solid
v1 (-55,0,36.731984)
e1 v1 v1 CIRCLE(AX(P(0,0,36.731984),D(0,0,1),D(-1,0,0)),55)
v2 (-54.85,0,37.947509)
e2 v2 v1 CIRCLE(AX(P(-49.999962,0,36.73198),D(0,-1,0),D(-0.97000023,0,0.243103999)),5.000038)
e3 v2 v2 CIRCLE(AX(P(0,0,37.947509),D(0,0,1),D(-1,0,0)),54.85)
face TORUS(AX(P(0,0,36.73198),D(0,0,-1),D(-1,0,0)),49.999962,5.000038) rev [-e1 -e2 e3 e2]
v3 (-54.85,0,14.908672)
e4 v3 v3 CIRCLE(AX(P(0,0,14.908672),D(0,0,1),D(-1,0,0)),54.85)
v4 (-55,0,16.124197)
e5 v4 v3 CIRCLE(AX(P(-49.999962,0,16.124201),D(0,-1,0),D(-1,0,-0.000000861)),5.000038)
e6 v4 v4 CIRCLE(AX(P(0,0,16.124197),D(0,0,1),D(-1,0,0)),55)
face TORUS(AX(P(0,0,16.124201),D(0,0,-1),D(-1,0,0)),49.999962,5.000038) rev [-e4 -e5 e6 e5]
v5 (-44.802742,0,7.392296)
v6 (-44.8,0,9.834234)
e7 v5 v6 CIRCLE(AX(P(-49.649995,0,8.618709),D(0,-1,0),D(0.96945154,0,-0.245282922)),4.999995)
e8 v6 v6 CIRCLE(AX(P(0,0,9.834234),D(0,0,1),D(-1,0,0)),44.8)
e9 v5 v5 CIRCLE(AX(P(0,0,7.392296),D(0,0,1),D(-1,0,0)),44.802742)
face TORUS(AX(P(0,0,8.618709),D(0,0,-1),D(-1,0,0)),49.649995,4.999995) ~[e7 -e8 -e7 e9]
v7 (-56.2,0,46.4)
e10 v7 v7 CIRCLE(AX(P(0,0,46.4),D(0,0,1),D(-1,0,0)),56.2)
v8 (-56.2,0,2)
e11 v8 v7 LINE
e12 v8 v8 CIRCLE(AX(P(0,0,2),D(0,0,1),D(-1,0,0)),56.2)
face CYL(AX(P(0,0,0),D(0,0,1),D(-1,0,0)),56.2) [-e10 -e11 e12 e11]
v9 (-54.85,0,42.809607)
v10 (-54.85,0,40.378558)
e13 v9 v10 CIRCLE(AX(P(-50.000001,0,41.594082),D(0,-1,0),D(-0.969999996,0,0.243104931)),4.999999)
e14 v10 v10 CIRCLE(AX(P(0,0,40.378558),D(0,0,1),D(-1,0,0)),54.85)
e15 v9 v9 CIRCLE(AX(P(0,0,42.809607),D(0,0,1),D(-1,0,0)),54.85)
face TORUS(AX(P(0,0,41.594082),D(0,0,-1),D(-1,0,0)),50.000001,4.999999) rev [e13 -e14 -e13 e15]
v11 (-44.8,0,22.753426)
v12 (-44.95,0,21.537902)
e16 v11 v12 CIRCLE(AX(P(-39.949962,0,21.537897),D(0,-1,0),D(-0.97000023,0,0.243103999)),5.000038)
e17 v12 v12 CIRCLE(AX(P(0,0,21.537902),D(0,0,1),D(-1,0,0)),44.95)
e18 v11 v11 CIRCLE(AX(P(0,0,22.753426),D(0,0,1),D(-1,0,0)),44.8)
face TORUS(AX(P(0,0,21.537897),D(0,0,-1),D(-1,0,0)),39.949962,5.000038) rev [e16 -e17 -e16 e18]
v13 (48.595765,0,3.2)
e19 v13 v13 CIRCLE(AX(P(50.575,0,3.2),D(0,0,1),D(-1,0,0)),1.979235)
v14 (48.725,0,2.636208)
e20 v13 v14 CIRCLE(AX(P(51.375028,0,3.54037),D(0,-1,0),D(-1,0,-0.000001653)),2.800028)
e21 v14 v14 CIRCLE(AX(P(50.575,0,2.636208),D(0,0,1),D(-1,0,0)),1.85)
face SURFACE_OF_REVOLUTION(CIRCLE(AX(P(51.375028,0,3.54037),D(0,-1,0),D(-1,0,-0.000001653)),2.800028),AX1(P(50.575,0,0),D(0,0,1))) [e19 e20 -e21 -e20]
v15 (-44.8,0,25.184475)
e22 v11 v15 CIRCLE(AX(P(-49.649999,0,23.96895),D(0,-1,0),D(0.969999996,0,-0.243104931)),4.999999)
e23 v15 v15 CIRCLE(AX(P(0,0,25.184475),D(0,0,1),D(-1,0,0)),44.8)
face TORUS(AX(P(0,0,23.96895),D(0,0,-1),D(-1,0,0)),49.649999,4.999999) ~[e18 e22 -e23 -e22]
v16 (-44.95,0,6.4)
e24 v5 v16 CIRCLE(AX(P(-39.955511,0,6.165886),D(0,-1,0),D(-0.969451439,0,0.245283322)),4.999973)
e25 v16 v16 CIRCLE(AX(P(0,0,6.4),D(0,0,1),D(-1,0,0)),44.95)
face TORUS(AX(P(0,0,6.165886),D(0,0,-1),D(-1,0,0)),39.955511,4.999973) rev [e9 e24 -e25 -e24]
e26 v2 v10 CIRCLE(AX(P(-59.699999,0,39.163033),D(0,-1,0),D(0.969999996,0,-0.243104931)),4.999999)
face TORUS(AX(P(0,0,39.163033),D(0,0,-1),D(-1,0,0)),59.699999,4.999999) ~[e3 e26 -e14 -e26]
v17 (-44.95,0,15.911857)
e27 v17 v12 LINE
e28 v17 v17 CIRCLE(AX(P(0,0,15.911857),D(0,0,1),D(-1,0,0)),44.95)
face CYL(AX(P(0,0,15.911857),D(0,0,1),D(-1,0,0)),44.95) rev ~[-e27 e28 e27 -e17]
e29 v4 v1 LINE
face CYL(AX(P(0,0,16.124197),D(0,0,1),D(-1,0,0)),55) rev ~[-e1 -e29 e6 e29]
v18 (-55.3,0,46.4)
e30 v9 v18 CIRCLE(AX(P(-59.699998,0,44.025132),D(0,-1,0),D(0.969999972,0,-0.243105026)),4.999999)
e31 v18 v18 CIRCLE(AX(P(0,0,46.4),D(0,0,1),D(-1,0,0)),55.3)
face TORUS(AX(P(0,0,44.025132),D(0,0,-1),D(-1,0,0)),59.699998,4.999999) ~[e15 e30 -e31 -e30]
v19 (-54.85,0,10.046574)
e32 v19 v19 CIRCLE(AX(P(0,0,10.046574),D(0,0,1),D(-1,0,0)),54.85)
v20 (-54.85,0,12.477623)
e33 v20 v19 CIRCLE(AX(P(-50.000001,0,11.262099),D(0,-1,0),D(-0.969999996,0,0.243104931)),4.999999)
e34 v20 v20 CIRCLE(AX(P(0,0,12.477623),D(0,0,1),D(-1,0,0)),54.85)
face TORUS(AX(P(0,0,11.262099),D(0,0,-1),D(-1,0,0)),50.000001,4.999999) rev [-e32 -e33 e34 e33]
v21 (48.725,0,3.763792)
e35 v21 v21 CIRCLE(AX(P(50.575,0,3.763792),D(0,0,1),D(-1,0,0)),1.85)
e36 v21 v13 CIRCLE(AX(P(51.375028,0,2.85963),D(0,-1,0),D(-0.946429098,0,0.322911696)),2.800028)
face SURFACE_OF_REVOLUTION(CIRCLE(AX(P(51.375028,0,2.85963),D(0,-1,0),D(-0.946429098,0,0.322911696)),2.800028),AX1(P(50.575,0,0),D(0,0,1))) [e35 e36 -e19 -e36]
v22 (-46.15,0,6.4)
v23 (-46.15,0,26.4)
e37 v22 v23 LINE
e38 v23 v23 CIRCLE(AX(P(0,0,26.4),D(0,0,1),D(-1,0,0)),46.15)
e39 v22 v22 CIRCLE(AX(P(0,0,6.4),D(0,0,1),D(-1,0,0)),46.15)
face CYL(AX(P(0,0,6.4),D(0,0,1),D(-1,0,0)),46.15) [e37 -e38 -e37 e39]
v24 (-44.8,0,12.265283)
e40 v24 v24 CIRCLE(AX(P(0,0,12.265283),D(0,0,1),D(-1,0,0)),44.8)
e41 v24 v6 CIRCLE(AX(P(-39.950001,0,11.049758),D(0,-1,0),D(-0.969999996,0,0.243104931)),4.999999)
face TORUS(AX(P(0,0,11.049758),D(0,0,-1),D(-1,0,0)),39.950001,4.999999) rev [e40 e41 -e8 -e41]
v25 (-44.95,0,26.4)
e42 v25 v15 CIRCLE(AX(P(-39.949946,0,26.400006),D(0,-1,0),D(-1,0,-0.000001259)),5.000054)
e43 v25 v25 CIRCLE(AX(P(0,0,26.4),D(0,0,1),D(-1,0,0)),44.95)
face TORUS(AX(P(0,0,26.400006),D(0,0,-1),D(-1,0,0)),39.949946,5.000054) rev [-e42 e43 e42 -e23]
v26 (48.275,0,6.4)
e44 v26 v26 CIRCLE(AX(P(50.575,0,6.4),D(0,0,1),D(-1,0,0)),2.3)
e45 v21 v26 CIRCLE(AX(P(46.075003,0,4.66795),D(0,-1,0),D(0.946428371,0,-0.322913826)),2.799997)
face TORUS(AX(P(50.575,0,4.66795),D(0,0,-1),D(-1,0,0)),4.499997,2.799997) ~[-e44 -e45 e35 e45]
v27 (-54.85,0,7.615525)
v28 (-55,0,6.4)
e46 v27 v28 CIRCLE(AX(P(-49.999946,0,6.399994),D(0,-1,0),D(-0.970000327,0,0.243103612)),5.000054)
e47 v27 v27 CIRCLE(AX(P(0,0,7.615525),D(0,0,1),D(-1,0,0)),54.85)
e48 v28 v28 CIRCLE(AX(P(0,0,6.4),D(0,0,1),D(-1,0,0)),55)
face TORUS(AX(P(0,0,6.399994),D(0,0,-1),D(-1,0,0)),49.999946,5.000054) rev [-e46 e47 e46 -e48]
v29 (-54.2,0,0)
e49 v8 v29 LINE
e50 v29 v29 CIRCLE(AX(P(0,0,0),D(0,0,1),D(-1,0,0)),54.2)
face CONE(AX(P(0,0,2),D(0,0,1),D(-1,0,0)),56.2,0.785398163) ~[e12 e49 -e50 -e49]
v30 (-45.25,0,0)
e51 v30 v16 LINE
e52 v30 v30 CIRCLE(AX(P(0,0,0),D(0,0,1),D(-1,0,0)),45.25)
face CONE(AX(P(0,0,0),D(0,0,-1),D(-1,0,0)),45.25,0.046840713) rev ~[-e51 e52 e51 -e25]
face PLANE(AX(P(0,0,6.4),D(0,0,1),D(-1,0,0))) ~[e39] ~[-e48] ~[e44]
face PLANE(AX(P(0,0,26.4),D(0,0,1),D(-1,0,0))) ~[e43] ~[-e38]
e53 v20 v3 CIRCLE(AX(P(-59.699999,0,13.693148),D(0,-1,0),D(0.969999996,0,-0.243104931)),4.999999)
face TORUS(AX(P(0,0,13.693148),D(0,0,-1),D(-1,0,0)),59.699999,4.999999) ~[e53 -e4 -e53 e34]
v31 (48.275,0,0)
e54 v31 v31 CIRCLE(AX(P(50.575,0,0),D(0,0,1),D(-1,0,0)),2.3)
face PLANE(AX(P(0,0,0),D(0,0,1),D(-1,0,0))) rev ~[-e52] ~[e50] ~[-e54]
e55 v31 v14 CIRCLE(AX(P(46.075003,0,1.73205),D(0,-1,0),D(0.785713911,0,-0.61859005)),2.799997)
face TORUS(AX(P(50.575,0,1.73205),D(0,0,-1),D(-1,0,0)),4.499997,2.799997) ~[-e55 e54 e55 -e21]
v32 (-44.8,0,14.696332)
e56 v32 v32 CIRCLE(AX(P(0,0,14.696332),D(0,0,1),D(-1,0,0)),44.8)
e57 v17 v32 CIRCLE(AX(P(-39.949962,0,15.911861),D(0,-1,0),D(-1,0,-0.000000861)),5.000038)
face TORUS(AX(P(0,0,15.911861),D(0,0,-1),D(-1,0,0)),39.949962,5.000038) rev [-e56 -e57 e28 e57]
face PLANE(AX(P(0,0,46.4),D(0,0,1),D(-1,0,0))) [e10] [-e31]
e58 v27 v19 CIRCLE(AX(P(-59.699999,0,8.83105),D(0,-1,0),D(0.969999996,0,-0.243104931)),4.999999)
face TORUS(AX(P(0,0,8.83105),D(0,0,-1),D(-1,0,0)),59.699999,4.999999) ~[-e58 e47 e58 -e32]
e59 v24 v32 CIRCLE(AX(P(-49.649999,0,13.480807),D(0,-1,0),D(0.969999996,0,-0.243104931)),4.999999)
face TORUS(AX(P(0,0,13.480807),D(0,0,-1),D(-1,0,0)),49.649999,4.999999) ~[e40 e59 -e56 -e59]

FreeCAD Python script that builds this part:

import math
import FreeCAD as App
import Part
import Sketcher

V = App.Vector


def edges_at(feature, points):
    """Names of the edges that pass closest to the given points."""
    edges = feature.Shape.Edges
    near = lambda p: min(range(len(edges)), key=lambda i: edges[i].distToShape(Part.Vertex(*p))[0])
    return sorted({f"Edge{near(p) + 1}" for p in points})

doc = App.newDocument("Part")
body = doc.addObject("PartDesign::Body", "Body")

# Sketch on XZ plane
sketch1 = body.newObject("Sketcher::SketchObject", "Sketch")
sketch1.AttachmentSupport = (doc.getObject("XZ_Plane"), [""])
sketch1.MapMode = "FlatFace"
sketch1.addGeometry([
    Part.LineSegment(V(-56.2, 46.4, 0), V(-56.2, 0, 0)),  # 0
    Part.LineSegment(V(-56.2, 0, 0), V(-45.25, 0, 0)),  # 1
    Part.LineSegment(V(-45.25, 0, 0), V(-44.95, 6.4, 0)),  # 2
    Part.ArcOfCircle(Part.Circle(V(-39.955511, 6.165886, 0), V(0, 0, 1), 4.999973), math.radians(165.801422), math.radians(177.316257)),  # 3
    Part.ArcOfCircle(Part.Circle(V(-49.649995, 8.618709, 0), V(0, 0, 1), 4.999995), math.radians(-14.198554), math.radians(14.069882)),  # 4
    Part.ArcOfCircle(Part.Circle(V(-39.950001, 11.049758, 0), V(0, 0, 1), 4.999999), math.radians(165.930131), math.radians(194.069869)),  # 5
    Part.ArcOfCircle(Part.Circle(V(-49.649999, 13.480807, 0), V(0, 0, 1), 4.999999), math.radians(-14.069869), math.radians(14.069869)),  # 6
    Part.ArcOfCircle(Part.Circle(V(-39.949962, 15.911861, 0), V(0, 0, 1), 5.000038), math.radians(-179.999951), math.radians(-165.930186)),  # 7
    Part.LineSegment(V(-44.95, 15.911857, 0), V(-44.95, 21.537902, 0)),  # 8
    Part.ArcOfCircle(Part.Circle(V(-39.949962, 21.537897, 0), V(0, 0, 1), 5.000038), math.radians(165.930186), math.radians(179.999939)),  # 9
    Part.ArcOfCircle(Part.Circle(V(-49.649999, 23.96895, 0), V(0, 0, 1), 4.999999), math.radians(-14.069869), math.radians(14.069869)),  # 10
    Part.ArcOfCircle(Part.Circle(V(-39.949946, 26.400006, 0), V(0, 0, 1), 5.000054), math.radians(-179.999928), math.radians(-165.930209)),  # 11
    Part.LineSegment(V(-44.95, 26.4, 0), V(-46.15, 26.4, 0)),  # 12
    Part.LineSegment(V(-46.15, 26.4, 0), V(-46.15, 6.4, 0)),  # 13
    Part.LineSegment(V(-46.15, 6.4, 0), V(-55, 6.4, 0)),  # 14
    Part.ArcOfCircle(Part.Circle(V(-49.999946, 6.399994, 0), V(0, 0, 1), 5.000054), math.radians(165.930209), math.radians(179.999928)),  # 15
    Part.ArcOfCircle(Part.Circle(V(-59.699999, 8.83105, 0), V(0, 0, 1), 4.999999), math.radians(-14.069869), math.radians(14.069869)),  # 16
    Part.ArcOfCircle(Part.Circle(V(-50.000001, 11.262099, 0), V(0, 0, 1), 4.999999), math.radians(165.930131), math.radians(194.069869)),  # 17
    Part.ArcOfCircle(Part.Circle(V(-59.699999, 13.693148, 0), V(0, 0, 1), 4.999999), math.radians(-14.069869), math.radians(14.069869)),  # 18
    Part.ArcOfCircle(Part.Circle(V(-49.999962, 16.124201, 0), V(0, 0, 1), 5.000038), math.radians(-179.999951), math.radians(-165.930186)),  # 19
    Part.LineSegment(V(-55, 16.124197, 0), V(-55, 36.731984, 0)),  # 20
    Part.ArcOfCircle(Part.Circle(V(-49.999962, 36.73198, 0), V(0, 0, 1), 5.000038), math.radians(165.930186), math.radians(179.999951)),  # 21
    Part.ArcOfCircle(Part.Circle(V(-59.699999, 39.163033, 0), V(0, 0, 1), 4.999999), math.radians(-14.069869), math.radians(14.069869)),  # 22
    Part.ArcOfCircle(Part.Circle(V(-50.000001, 41.594082, 0), V(0, 0, 1), 4.999999), math.radians(165.930131), math.radians(194.069869)),  # 23
    Part.ArcOfCircle(Part.Circle(V(-59.699998, 44.025132, 0), V(0, 0, 1), 4.999999), math.radians(-14.069874), math.radians(28.357643)),  # 24
    Part.LineSegment(V(-55.3, 46.4, 0), V(-56.2, 46.4, 0)),  # 25
], False)
sketch1.addConstraint([
    Sketcher.Constraint("Coincident", 0, 2, 1, 1),
    Sketcher.Constraint("Coincident", 1, 2, 2, 1),
    Sketcher.Constraint("Coincident", 2, 2, 3, 2),
    Sketcher.Constraint("Coincident", 3, 1, 4, 1),
    Sketcher.Constraint("Coincident", 4, 2, 5, 2),
    Sketcher.Constraint("Coincident", 5, 1, 6, 1),
    Sketcher.Constraint("Coincident", 6, 2, 7, 2),
    Sketcher.Constraint("Coincident", 7, 1, 8, 1),
    Sketcher.Constraint("Coincident", 8, 2, 9, 2),
    Sketcher.Constraint("Coincident", 9, 1, 10, 1),
    Sketcher.Constraint("Coincident", 10, 2, 11, 2),
    Sketcher.Constraint("Coincident", 11, 1, 12, 1),
    Sketcher.Constraint("Coincident", 12, 2, 13, 1),
    Sketcher.Constraint("Coincident", 13, 2, 14, 1),
    Sketcher.Constraint("Coincident", 14, 2, 15, 2),
    Sketcher.Constraint("Coincident", 15, 1, 16, 1),
    Sketcher.Constraint("Coincident", 16, 2, 17, 2),
    Sketcher.Constraint("Coincident", 17, 1, 18, 1),
    Sketcher.Constraint("Coincident", 18, 2, 19, 2),
    Sketcher.Constraint("Coincident", 19, 1, 20, 1),
    Sketcher.Constraint("Coincident", 20, 2, 21, 2),
    Sketcher.Constraint("Coincident", 21, 1, 22, 1),
    Sketcher.Constraint("Coincident", 22, 2, 23, 2),
    Sketcher.Constraint("Coincident", 23, 1, 24, 1),
    Sketcher.Constraint("Coincident", 24, 2, 25, 1),
    Sketcher.Constraint("Coincident", 25, 2, 0, 1),
    Sketcher.Constraint("Vertical", 0),
    Sketcher.Constraint("Horizontal", 1),
    Sketcher.Constraint("Vertical", 8),
    Sketcher.Constraint("Horizontal", 12),
    Sketcher.Constraint("Vertical", 13),
    Sketcher.Constraint("Horizontal", 14),
    Sketcher.Constraint("Vertical", 20),
    Sketcher.Constraint("Horizontal", 25),
    Sketcher.Constraint("PointOnObject", 0, 2, -1),
    Sketcher.Constraint("Radius", 5, 4.999999),
    Sketcher.Constraint("Radius", 6, 4.999999),
    Sketcher.Constraint("Radius", 10, 4.999999),
    Sketcher.Constraint("Radius", 16, 4.999999),
    Sketcher.Constraint("Radius", 17, 4.999999),
    Sketcher.Constraint("Radius", 18, 4.999999),
    Sketcher.Constraint("Radius", 22, 4.999999),
    Sketcher.Constraint("Radius", 23, 4.999999),
    Sketcher.Constraint("Radius", 24, 4.999999),
    Sketcher.Constraint("DistanceY", 13, 2, 13, 1, 20.0),
    Sketcher.Constraint("DistanceX", 12, 2, 12, 1, 1.2),
    Sketcher.Constraint("DistanceX", 25, 2, 25, 1, 0.9),
    Sketcher.Constraint("DistanceY", 0, 2, 0, 1, 46.4),
    Sketcher.Constraint("DistanceX", 17, 3, -1, 1, 50.000001),
    Sketcher.Constraint("DistanceX", 23, 3, -1, 1, 50.000001),
    Sketcher.Constraint("DistanceX", 14, 2, -1, 1, 55.0),
    Sketcher.Constraint("DistanceX", 19, 1, -1, 1, 55.0),
    Sketcher.Constraint("DistanceX", 2, 2, 5, 3, 4.999999),
    Sketcher.Constraint("DistanceX", 1, 1, 1, 2, 10.95),
    Sketcher.Constraint("DistanceX", 14, 2, 14, 1, 8.85),
    Sketcher.Constraint("DistanceX", 16, 3, -1, 1, 59.699999),
    Sketcher.Constraint("DistanceX", 18, 3, -1, 1, 59.699999),
    Sketcher.Constraint("DistanceX", 22, 3, -1, 1, 59.699999),
    Sketcher.Constraint("DistanceX", 24, 3, -1, 1, 59.699998),
    Sketcher.Constraint("DistanceX", 0, 2, -1, 1, 56.2),
    Sketcher.Constraint("DistanceY", -1, 1, 2, 2, 6.4),
    Sketcher.Constraint("DistanceX", 4, 2, -1, 1, 44.8),
    Sketcher.Constraint("DistanceX", 5, 1, -1, 1, 44.8),
    Sketcher.Constraint("DistanceX", 6, 2, -1, 1, 44.8),
    Sketcher.Constraint("DistanceX", 9, 1, -1, 1, 44.8),
    Sketcher.Constraint("DistanceX", 10, 2, -1, 1, 44.8),
    Sketcher.Constraint("DistanceY", -1, 1, 11, 1, 26.4),
    Sketcher.Constraint("DistanceX", 6, 3, 5, 3, 9.699999),
    Sketcher.Constraint("DistanceX", 10, 3, 5, 3, 9.699999),
    Sketcher.Constraint("DistanceX", 1, 2, 2, 2, 0.3),
    Sketcher.Constraint("DistanceX", 6, 3, 7, 1, 4.699999),
    Sketcher.Constraint("DistanceX", 17, 1, 6, 3, 5.200001),
    Sketcher.Constraint("DistanceX", 18, 2, 6, 3, 5.200001),
    Sketcher.Constraint("DistanceX", 15, 1, -1, 1, 54.85),
    Sketcher.Constraint("DistanceX", 16, 2, -1, 1, 54.85),
    Sketcher.Constraint("DistanceX", 21, 1, -1, 1, 54.85),
    Sketcher.Constraint("DistanceX", 22, 2, -1, 1, 54.85),
    Sketcher.Constraint("DistanceX", 23, 1, -1, 1, 54.85),
    Sketcher.Constraint("Radius", 7, 5.000038),
    Sketcher.Constraint("Radius", 9, 5.000038),
    Sketcher.Constraint("Radius", 19, 5.000038),
    Sketcher.Constraint("Radius", 21, 5.000038),
    Sketcher.Constraint("Radius", 3, 4.999973),
    Sketcher.Constraint("Radius", 4, 4.999995),
    Sketcher.Constraint("Radius", 11, 5.000054),
    Sketcher.Constraint("Radius", 15, 5.000054),
    Sketcher.Constraint("DistanceY", -1, 1, 17, 3, 11.262099),
    Sketcher.Constraint("DistanceY", -1, 1, 8, 2, 21.537902),
    Sketcher.Constraint("DistanceY", 4, 3, 6, 3, 4.862098),
    Sketcher.Constraint("DistanceY", 6, 3, 11, 3, 12.919199),
    Sketcher.Constraint("DistanceY", 16, 3, 10, 3, 15.137901),
    Sketcher.Constraint("DistanceY", 20, 2, 23, 3, 4.862099),
    Sketcher.Constraint("DistanceY", 8, 1, 8, 2, 5.626045),
    Sketcher.Constraint("DistanceY", 20, 1, 20, 2, 20.607787),
    Sketcher.Constraint("DistanceX", 3, 1, -1, 1, 44.802742),
])
revolution = body.newObject("PartDesign::Revolution", "Revolution")
revolution.Profile = sketch1
revolution.ReferenceAxis = (sketch1, ["V_Axis"])
revolution.Angle = 360

# Sketch on XZ plane
sketch2 = body.newObject("Sketcher::SketchObject", "Sketch001")
sketch2.AttachmentSupport = (doc.getObject("XZ_Plane"), [""])
sketch2.MapMode = "FlatFace"
sketch2.addGeometry([
    Part.LineSegment(V(50.6, 6.4, 0), V(48.3, 6.4, 0)),  # 0
    Part.ArcOfCircle(Part.Circle(V(46.1, 4.7, 0), V(0, 0, 1), 2.8), math.radians(-19), math.radians(38)),  # 1
    Part.ArcOfCircle(Part.Circle(V(51.4, 2.9, 0), V(0, 0, 1), 2.8), math.radians(161.16), math.radians(173.02)),  # 2
    Part.ArcOfCircle(Part.Circle(V(51.4, 3.5, 0), V(0, 0, 1), 2.8), math.radians(-173.02), math.radians(-161.16)),  # 3
    Part.ArcOfCircle(Part.Circle(V(46.1, 1.7, 0), V(0, 0, 1), 2.8), math.radians(-38), math.radians(19)),  # 4
    Part.LineSegment(V(48.3, 0, 0), V(50.6, 0, 0)),  # 5
    Part.LineSegment(V(50.6, 0, 0), V(50.6, 6.4, 0)),  # 6
], False)
sketch2.addGeometry(Part.LineSegment(V(50.6, 0, 0), V(50.6, 6.4, 0)), True)  # axis
sketch2.addConstraint([
    Sketcher.Constraint("Coincident", 0, 2, 1, 2),
    Sketcher.Constraint("Coincident", 1, 1, 2, 1),
    Sketcher.Constraint("Coincident", 2, 2, 3, 1),
    Sketcher.Constraint("Coincident", 3, 2, 4, 2),
    Sketcher.Constraint("Coincident", 4, 1, 5, 1),
    Sketcher.Constraint("Coincident", 5, 2, 6, 1),
    Sketcher.Constraint("Coincident", 6, 2, 0, 1),
    Sketcher.Constraint("Horizontal", 0),
    Sketcher.Constraint("Horizontal", 5),
    Sketcher.Constraint("Vertical", 6),
    Sketcher.Constraint("Vertical", 7),
    Sketcher.Constraint("Coincident", 7, 1, 5, 2),
    Sketcher.Constraint("Equal", 2, 3),
    Sketcher.Constraint("Equal", 1, 4),
    Sketcher.Constraint("PointOnObject", 4, 1, -1),
    Sketcher.Constraint("Horizontal", 0, 2, 7, 2),
    Sketcher.Constraint("Vertical", 2, 3, 3, 3),
    Sketcher.Constraint("Vertical", 1, 3, 4, 3),
    Sketcher.Constraint("Vertical", 1, 1, 3, 2),
    Sketcher.Constraint("Vertical", 0, 2, 4, 1),
    Sketcher.Constraint("DistanceX", 0, 2, 0, 1, 2.3),
    Sketcher.Constraint("DistanceY", 6, 1, 6, 2, 6.4),
    Sketcher.Constraint("DistanceX", 0, 2, 1, 1, 0.45),
    Sketcher.Constraint("DistanceX", -1, 1, 0, 2, 48.275),
    Sketcher.Constraint("Radius", 1, 2.799997),
    Sketcher.Constraint("Radius", 2, 2.800028),
    Sketcher.Constraint("DistanceY", 4, 3, 1, 3, 2.935899),
    Sketcher.Constraint("DistanceY", -1, 1, 2, 3, 2.85963),
])
groove = body.newObject("PartDesign::Groove", "Groove")
groove.Profile = sketch2
groove.ReferenceAxis = (sketch2, ["Axis0"])
groove.Angle = 360
doc.recompute()

chamfer = body.newObject("PartDesign::Chamfer", "Chamfer")
chamfer.Base = (groove, edges_at(groove, [(56.2, 0, 0)]))
chamfer.Size = 2

doc.recompute()
